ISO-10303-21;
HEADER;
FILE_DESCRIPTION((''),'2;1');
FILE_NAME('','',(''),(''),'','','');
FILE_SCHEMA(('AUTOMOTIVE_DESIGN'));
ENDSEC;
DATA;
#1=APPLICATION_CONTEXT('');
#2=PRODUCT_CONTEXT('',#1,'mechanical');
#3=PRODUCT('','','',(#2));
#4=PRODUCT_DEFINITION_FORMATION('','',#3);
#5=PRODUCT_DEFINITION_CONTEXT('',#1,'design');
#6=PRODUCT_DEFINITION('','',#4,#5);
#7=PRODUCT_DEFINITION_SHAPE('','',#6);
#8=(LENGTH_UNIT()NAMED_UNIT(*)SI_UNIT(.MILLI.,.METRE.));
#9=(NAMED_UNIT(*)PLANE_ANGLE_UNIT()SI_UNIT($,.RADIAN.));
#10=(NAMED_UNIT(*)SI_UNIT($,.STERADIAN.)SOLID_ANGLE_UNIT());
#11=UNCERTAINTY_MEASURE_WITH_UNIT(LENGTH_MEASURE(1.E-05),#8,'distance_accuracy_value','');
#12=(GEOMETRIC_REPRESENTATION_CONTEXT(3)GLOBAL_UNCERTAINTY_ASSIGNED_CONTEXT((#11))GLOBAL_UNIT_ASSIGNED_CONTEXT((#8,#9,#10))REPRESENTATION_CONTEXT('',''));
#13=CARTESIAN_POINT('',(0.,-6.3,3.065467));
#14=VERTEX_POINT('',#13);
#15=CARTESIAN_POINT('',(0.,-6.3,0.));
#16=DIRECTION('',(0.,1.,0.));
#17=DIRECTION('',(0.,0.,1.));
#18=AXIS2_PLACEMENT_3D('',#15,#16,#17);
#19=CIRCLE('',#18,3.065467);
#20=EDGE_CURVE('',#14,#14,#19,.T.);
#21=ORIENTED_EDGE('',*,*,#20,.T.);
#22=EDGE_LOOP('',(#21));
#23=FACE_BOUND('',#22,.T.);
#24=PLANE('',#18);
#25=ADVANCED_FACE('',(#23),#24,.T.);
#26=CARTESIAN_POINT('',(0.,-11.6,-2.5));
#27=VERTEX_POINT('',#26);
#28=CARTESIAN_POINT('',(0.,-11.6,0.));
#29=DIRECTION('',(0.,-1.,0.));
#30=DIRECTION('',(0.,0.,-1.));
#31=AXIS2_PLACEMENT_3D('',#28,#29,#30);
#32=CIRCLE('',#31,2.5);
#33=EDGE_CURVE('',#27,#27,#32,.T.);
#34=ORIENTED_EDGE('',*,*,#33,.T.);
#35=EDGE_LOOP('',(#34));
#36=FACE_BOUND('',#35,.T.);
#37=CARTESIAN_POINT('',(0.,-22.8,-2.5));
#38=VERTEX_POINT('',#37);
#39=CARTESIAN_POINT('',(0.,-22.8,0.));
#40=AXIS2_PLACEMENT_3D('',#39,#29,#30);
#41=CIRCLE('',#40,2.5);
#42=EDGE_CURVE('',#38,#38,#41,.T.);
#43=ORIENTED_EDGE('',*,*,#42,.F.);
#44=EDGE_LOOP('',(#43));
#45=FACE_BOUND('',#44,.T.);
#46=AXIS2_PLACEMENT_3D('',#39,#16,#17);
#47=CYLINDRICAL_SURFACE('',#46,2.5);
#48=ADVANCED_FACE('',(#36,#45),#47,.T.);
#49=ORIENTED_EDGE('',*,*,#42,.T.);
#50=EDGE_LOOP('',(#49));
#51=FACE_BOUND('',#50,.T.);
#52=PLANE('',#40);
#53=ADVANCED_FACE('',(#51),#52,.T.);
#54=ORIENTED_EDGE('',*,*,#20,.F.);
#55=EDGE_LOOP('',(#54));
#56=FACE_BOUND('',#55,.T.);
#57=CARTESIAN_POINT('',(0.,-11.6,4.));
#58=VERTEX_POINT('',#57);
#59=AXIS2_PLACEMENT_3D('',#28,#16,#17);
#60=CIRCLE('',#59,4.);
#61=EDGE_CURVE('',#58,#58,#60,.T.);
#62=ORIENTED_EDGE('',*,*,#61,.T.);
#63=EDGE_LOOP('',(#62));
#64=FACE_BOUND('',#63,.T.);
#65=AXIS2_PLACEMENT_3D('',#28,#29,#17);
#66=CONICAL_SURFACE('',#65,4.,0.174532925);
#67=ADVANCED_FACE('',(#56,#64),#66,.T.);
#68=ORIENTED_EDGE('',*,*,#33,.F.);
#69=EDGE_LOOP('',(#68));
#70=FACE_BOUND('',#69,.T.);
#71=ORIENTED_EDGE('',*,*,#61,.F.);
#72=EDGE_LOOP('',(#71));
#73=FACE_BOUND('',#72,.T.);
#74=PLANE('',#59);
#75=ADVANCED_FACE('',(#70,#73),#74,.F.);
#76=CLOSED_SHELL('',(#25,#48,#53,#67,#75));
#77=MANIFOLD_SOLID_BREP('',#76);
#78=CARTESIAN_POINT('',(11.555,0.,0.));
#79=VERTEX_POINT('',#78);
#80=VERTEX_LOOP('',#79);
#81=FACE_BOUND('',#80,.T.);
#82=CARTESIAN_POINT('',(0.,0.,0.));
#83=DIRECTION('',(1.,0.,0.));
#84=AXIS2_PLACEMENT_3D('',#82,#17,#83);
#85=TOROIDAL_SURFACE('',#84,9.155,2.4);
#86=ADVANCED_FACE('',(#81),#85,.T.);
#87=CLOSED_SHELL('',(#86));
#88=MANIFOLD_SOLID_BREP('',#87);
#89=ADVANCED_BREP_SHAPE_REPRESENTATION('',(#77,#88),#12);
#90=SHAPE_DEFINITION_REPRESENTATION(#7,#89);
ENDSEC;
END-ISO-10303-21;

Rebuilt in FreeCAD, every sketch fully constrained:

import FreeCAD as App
import Part
import Sketcher
Q = App.Units.Quantity

doc = App.newDocument("Part")
body = doc.addObject("PartDesign::Body", "Body")

sketch1 = body.newObject("Sketcher::SketchObject", "Sketch")
sketch1.AttachmentSupport = (doc.getObject("XZ_Plane"), [""])
sketch1.MapMode = "FlatFace"
sketch1.addGeometry(Part.Circle(App.Vector(9.155, 0, 0), App.Vector(0, 0, 1), 2.4), False)
sketch1.addConstraint(Sketcher.Constraint("PointOnObject", 0, 3, -1))
sketch1.addConstraint(Sketcher.Constraint("Diameter", 0, Q("4.8 mm")))
sketch1.addConstraint(Sketcher.Constraint("DistanceX", -1, 1, 0, 3, Q("9.155 mm")))
revolution = body.newObject("PartDesign::Revolution", "Revolution")
revolution.Profile = sketch1
revolution.ReferenceAxis = (sketch1, ["V_Axis"])
revolution.Angle = 360
body2 = doc.addObject("PartDesign::Body", "Body001")

sketch2 = body2.newObject("Sketcher::SketchObject", "Sketch001")
sketch2.AttachmentSupport = (doc.getObject("XZ_Plane001"), [""])
sketch2.MapMode = "FlatFace"
sketch2.AttachmentOffset = App.Placement(App.Vector(0, 0, 11.6), App.Rotation())
sketch2.addGeometry(Part.Circle(App.Vector(0, 0, 0), App.Vector(0, 0, 1), 4), False)
sketch2.addConstraint(Sketcher.Constraint("Coincident", 0, 3, -1, 1))
sketch2.addConstraint(Sketcher.Constraint("Diameter", 0, Q("8 mm")))
pad1 = body2.newObject("PartDesign::Pad", "Pad")
pad1.Profile = sketch2
pad1.Length = 5.3
pad1.Reversed = True
pad1.TaperAngle = -10

sketch3 = body2.newObject("Sketcher::SketchObject", "Sketch002")
sketch3.AttachmentSupport = (doc.getObject("XZ_Plane001"), [""])
sketch3.MapMode = "FlatFace"
sketch3.AttachmentOffset = App.Placement(App.Vector(0, 0, 11.6), App.Rotation())
sketch3.addGeometry(Part.Circle(App.Vector(0, 0, 0), App.Vector(0, 0, 1), 2.5), False)
sketch3.addConstraint(Sketcher.Constraint("Coincident", 0, 3, -1, 1))
sketch3.addConstraint(Sketcher.Constraint("Diameter", 0, Q("5 mm")))
pad2 = body2.newObject("PartDesign::Pad", "Pad001")
pad2.Profile = sketch3
pad2.Length = 11.2

doc.recompute()
